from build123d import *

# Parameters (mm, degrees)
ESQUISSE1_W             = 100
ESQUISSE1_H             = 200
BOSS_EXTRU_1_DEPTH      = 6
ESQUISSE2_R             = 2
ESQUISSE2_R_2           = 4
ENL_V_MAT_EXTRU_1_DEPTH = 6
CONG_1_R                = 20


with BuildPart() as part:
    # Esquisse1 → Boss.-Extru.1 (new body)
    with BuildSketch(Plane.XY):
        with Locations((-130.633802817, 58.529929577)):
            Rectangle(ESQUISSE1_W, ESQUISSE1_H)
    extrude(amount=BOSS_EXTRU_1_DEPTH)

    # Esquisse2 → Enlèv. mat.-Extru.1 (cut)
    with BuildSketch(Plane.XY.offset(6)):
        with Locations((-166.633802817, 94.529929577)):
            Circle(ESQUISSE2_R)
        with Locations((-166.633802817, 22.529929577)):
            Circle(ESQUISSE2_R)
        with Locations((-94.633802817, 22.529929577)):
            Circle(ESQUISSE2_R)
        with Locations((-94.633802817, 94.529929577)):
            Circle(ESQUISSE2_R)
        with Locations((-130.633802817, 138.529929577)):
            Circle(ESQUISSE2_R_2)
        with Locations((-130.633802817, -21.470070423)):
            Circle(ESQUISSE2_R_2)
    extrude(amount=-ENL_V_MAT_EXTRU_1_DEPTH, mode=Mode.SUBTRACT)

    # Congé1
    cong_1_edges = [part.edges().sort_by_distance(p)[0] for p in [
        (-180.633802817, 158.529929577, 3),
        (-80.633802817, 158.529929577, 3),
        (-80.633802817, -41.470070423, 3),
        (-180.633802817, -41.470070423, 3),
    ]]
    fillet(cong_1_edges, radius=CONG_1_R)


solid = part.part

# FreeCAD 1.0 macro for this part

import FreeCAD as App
import Part
import Sketcher
from FreeCAD import Vector


def edges_at(feature, points):
    """Names of the edges that pass closest to the given points."""
    edges = feature.Shape.Edges
    near = lambda p: min(range(len(edges)), key=lambda i: edges[i].distToShape(Part.Vertex(*p))[0])
    return sorted({f"Edge{near(p) + 1}" for p in points})

doc = App.newDocument("Part")
body = doc.addObject("PartDesign::Body", "Body")

# Sketch on XY plane
sketch1 = body.newObject("Sketcher::SketchObject", "Sketch")
sketch1.AttachmentSupport = (doc.getObject("XY_Plane"), [""])
sketch1.MapMode = "FlatFace"
sketch1.addGeometry([
    Part.LineSegment(Vector(-181, 159, 0), Vector(-181, -41, 0)),
    Part.LineSegment(Vector(-181, -41, 0), Vector(-81, -41, 0)),
    Part.LineSegment(Vector(-81, -41, 0), Vector(-81, 159, 0)),
    Part.LineSegment(Vector(-81, 159, 0), Vector(-181, 159, 0)),
], False)
sketch1.addConstraint([
    Sketcher.Constraint("Coincident", 0, 2, 1, 1),
    Sketcher.Constraint("Coincident", 1, 2, 2, 1),
    Sketcher.Constraint("Coincident", 2, 2, 3, 1),
    Sketcher.Constraint("Coincident", 3, 2, 0, 1),
    Sketcher.Constraint("Vertical", 0),
    Sketcher.Constraint("Horizontal", 1),
    Sketcher.Constraint("Vertical", 2),
    Sketcher.Constraint("Horizontal", 3),
    Sketcher.Constraint("DistanceX", 1, 1, 1, 2, 100.0),
    Sketcher.Constraint("DistanceY", 0, 2, 0, 1, 200.0),
    Sketcher.Constraint("DistanceY", 0, 2, -1, 1, 41.47007),
    Sketcher.Constraint("DistanceX", 0, 2, -1, 1, 180.633803),
])
pad1 = body.newObject("PartDesign::Pad", "Pad")
pad1.Profile = sketch1
pad1.Length = 6

# Sketch on XY plane
sketch2 = body.newObject("Sketcher::SketchObject", "Sketch001")
sketch2.AttachmentSupport = (doc.getObject("XY_Plane"), [""])
sketch2.MapMode = "FlatFace"
sketch2.AttachmentOffset = App.Placement(Vector(0, 0, 6), App.Rotation())
sketch2.addGeometry([
    Part.Circle(Vector(-166.6, 94.5, 0), Vector(0, 0, 1), 2),  # 0
    Part.Circle(Vector(-166.6, 22.5, 0), Vector(0, 0, 1), 2),  # 1
    Part.Circle(Vector(-94.6, 22.5, 0), Vector(0, 0, 1), 2),  # 2
    Part.Circle(Vector(-94.6, 94.5, 0), Vector(0, 0, 1), 2),  # 3
    Part.Circle(Vector(-130.6, 138.5, 0), Vector(0, 0, 1), 4),  # 4
    Part.Circle(Vector(-130.6, -21.5, 0), Vector(0, 0, 1), 4),  # 5
], False)
sketch2.addConstraint([
    Sketcher.Constraint("Equal", 0, 1),
    Sketcher.Constraint("Equal", 1, 2),
    Sketcher.Constraint("Equal", 2, 3),
    Sketcher.Constraint("Equal", 4, 5),
    Sketcher.Constraint("Horizontal", 1, 3, 2, 3),
    Sketcher.Constraint("Horizontal", 0, 3, 3, 3),
    Sketcher.Constraint("Vertical", 0, 3, 1, 3),
    Sketcher.Constraint("Vertical", 2, 3, 3, 3),
    Sketcher.Constraint("Vertical", 4, 3, 5, 3),
    Sketcher.Constraint("Diameter", 0, 4.0),
    Sketcher.Constraint("Diameter", 4, 8.0),
    Sketcher.Constraint("DistanceY", 1, 3, 0, 3, 72.0),
    Sketcher.Constraint("DistanceX", 1, 3, 2, 3, 72.0),
    Sketcher.Constraint("DistanceX", 0, 3, 4, 3, 36.0),
    Sketcher.Constraint("DistanceY", 0, 3, 4, 3, 44.0),
    Sketcher.Constraint("DistanceY", 5, 3, 1, 3, 44.0),
    Sketcher.Constraint("DistanceY", -1, 1, 0, 3, 94.52993),
    Sketcher.Constraint("DistanceX", 0, 3, -1, 1, 166.633803),
])
pocket1 = body.newObject("PartDesign::Pocket", "Pocket")
pocket1.Profile = sketch2
pocket1.Length = 6
doc.recompute()

fillet = body.newObject("PartDesign::Fillet", "Fillet")
fillet.Base = (pocket1, edges_at(pocket1, [
    (-180.634, 158.53, 3),
    (-80.634, 158.53, 3),
    (-80.634, -41.47, 3),
    (-180.634, -41.47, 3),
]))
fillet.Radius = 20

doc.recompute()
